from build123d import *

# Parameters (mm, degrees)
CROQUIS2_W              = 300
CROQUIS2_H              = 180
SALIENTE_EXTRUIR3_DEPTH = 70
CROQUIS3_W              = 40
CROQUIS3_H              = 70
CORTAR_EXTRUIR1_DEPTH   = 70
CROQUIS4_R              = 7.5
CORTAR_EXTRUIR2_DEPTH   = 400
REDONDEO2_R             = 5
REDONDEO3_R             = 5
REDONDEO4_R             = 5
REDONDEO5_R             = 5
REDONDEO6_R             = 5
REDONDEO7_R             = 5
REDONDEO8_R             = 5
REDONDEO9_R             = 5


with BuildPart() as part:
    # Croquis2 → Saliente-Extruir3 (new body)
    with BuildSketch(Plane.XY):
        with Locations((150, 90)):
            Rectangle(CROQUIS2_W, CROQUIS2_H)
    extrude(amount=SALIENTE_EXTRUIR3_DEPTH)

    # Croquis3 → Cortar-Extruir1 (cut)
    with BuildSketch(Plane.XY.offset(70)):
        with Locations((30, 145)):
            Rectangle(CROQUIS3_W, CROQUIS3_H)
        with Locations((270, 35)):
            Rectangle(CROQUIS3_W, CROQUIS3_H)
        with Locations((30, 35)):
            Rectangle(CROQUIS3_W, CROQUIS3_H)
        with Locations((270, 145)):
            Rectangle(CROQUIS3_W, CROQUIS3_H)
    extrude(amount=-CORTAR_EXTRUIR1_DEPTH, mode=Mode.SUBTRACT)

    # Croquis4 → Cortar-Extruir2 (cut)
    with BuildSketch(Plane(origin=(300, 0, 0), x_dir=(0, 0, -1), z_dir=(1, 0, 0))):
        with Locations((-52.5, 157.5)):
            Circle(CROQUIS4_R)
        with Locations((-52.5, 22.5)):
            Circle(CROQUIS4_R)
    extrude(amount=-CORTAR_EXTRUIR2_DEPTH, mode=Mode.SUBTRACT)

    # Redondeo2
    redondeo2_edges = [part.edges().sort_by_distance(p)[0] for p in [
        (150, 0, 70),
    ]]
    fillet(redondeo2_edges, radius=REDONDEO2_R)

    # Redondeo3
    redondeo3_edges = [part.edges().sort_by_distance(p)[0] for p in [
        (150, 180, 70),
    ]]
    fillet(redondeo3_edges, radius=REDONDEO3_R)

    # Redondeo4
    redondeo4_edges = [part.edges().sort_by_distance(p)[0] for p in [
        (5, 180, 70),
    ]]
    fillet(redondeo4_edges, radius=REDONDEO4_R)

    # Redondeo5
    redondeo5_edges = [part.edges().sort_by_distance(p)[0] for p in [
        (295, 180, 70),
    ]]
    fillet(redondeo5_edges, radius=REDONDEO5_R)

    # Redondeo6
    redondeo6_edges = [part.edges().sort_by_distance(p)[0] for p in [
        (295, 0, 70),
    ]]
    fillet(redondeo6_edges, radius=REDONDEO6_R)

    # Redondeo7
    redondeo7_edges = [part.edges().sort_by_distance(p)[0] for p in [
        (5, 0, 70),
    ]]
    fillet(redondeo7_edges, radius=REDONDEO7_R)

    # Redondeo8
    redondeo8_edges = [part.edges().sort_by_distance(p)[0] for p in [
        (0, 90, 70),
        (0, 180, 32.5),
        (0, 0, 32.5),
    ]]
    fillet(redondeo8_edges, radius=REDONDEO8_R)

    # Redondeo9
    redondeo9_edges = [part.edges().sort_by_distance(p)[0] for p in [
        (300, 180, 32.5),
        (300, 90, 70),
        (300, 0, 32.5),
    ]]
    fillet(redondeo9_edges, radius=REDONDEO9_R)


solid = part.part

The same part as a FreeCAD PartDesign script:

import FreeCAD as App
import Part
import Sketcher

V = App.Vector


def edges_at(feature, points):
    """Names of the edges that pass closest to the given points."""
    edges = feature.Shape.Edges
    near = lambda p: min(range(len(edges)), key=lambda i: edges[i].distToShape(Part.Vertex(*p))[0])
    return sorted({f"Edge{near(p) + 1}" for p in points})

doc = App.newDocument("Part")
body = doc.addObject("PartDesign::Body", "Body")

# Sketch on XY plane
sketch1 = body.newObject("Sketcher::SketchObject", "Sketch")
sketch1.AttachmentSupport = (doc.getObject("XY_Plane"), [""])
sketch1.MapMode = "FlatFace"
sketch1.addGeometry([
    Part.LineSegment(V(0, 180, 0), V(0, 0, 0)),
    Part.LineSegment(V(0, 0, 0), V(300, 0, 0)),
    Part.LineSegment(V(300, 0, 0), V(300, 180, 0)),
    Part.LineSegment(V(300, 180, 0), V(0, 180, 0)),
], False)
sketch1.addConstraint([
    Sketcher.Constraint("Coincident", 0, 2, 1, 1),
    Sketcher.Constraint("Coincident", 1, 2, 2, 1),
    Sketcher.Constraint("Coincident", 2, 2, 3, 1),
    Sketcher.Constraint("Coincident", 3, 2, 0, 1),
    Sketcher.Constraint("Vertical", 0),
    Sketcher.Constraint("Horizontal", 1),
    Sketcher.Constraint("Vertical", 2),
    Sketcher.Constraint("Horizontal", 3),
    Sketcher.Constraint("Coincident", 0, 2, -1, 1),
    Sketcher.Constraint("DistanceX", 1, 1, 1, 2, 300.0),
    Sketcher.Constraint("DistanceY", 0, 2, 0, 1, 180.0),
])
pad1 = body.newObject("PartDesign::Pad", "Pad")
pad1.Profile = sketch1
pad1.Length = 70

# Sketch on XY plane
sketch2 = body.newObject("Sketcher::SketchObject", "Sketch001")
sketch2.AttachmentSupport = (doc.getObject("XY_Plane"), [""])
sketch2.MapMode = "FlatFace"
sketch2.AttachmentOffset = App.Placement(V(0, 0, 70), App.Rotation())
sketch2.addGeometry([
    Part.LineSegment(V(10, 180, 0), V(10, 110, 0)),  # 0
    Part.LineSegment(V(10, 110, 0), V(50, 110, 0)),  # 1
    Part.LineSegment(V(50, 110, 0), V(50, 180, 0)),  # 2
    Part.LineSegment(V(50, 180, 0), V(10, 180, 0)),  # 3
    Part.LineSegment(V(250, 70, 0), V(250, 0, 0)),  # 4
    Part.LineSegment(V(250, 0, 0), V(290, 0, 0)),  # 5
    Part.LineSegment(V(290, 0, 0), V(290, 70, 0)),  # 6
    Part.LineSegment(V(290, 70, 0), V(250, 70, 0)),  # 7
    Part.LineSegment(V(10, 70, 0), V(10, 0, 0)),  # 8
    Part.LineSegment(V(10, 0, 0), V(50, 0, 0)),  # 9
    Part.LineSegment(V(50, 0, 0), V(50, 70, 0)),  # 10
    Part.LineSegment(V(50, 70, 0), V(10, 70, 0)),  # 11
    Part.LineSegment(V(250, 180, 0), V(250, 110, 0)),  # 12
    Part.LineSegment(V(250, 110, 0), V(290, 110, 0)),  # 13
    Part.LineSegment(V(290, 110, 0), V(290, 180, 0)),  # 14
    Part.LineSegment(V(290, 180, 0), V(250, 180, 0)),  # 15
], False)
sketch2.addConstraint([
    Sketcher.Constraint("Coincident", 0, 2, 1, 1),
    Sketcher.Constraint("Coincident", 1, 2, 2, 1),
    Sketcher.Constraint("Coincident", 2, 2, 3, 1),
    Sketcher.Constraint("Coincident", 3, 2, 0, 1),
    Sketcher.Constraint("Coincident", 4, 2, 5, 1),
    Sketcher.Constraint("Coincident", 5, 2, 6, 1),
    Sketcher.Constraint("Coincident", 6, 2, 7, 1),
    Sketcher.Constraint("Coincident", 7, 2, 4, 1),
    Sketcher.Constraint("Coincident", 8, 2, 9, 1),
    Sketcher.Constraint("Coincident", 9, 2, 10, 1),
    Sketcher.Constraint("Coincident", 10, 2, 11, 1),
    Sketcher.Constraint("Coincident", 11, 2, 8, 1),
    Sketcher.Constraint("Coincident", 12, 2, 13, 1),
    Sketcher.Constraint("Coincident", 13, 2, 14, 1),
    Sketcher.Constraint("Coincident", 14, 2, 15, 1),
    Sketcher.Constraint("Coincident", 15, 2, 12, 1),
    Sketcher.Constraint("Vertical", 0),
    Sketcher.Constraint("Horizontal", 1),
    Sketcher.Constraint("Vertical", 2),
    Sketcher.Constraint("Horizontal", 3),
    Sketcher.Constraint("Vertical", 4),
    Sketcher.Constraint("Horizontal", 5),
    Sketcher.Constraint("Vertical", 6),
    Sketcher.Constraint("Horizontal", 7),
    Sketcher.Constraint("Vertical", 8),
    Sketcher.Constraint("Horizontal", 9),
    Sketcher.Constraint("Vertical", 10),
    Sketcher.Constraint("Horizontal", 11),
    Sketcher.Constraint("Vertical", 12),
    Sketcher.Constraint("Horizontal", 13),
    Sketcher.Constraint("Vertical", 14),
    Sketcher.Constraint("Horizontal", 15),
    Sketcher.Constraint("PointOnObject", 4, 2, -1),
    Sketcher.Constraint("PointOnObject", 8, 2, -1),
    Sketcher.Constraint("Horizontal", 7, 2, 10, 2),
    Sketcher.Constraint("Horizontal", 1, 2, 12, 2),
    Sketcher.Constraint("Horizontal", 3, 2, 14, 2),
    Sketcher.Constraint("Vertical", 3, 2, 8, 2),
    Sketcher.Constraint("Vertical", 2, 2, 9, 2),
    Sketcher.Constraint("Vertical", 7, 2, 12, 2),
    Sketcher.Constraint("Vertical", 6, 2, 13, 2),
    Sketcher.Constraint("Equal", 3, 5),
    Sketcher.Constraint("Equal", 2, 4),
    Sketcher.Constraint("DistanceX", 1, 1, 1, 2, 40.0),
    Sketcher.Constraint("DistanceY", 0, 2, 0, 1, 70.0),
    Sketcher.Constraint("DistanceX", -1, 1, 0, 2, 10.0),
    Sketcher.Constraint("DistanceY", -1, 1, 0, 2, 110.0),
    Sketcher.Constraint("DistanceX", -1, 1, 4, 2, 250.0),
])
pocket1 = body.newObject("PartDesign::Pocket", "Pocket")
pocket1.Profile = sketch2
pocket1.Length = 70

# Sketch on YZ plane
sketch3 = body.newObject("Sketcher::SketchObject", "Sketch002")
sketch3.AttachmentSupport = (doc.getObject("YZ_Plane"), [""])
sketch3.MapMode = "FlatFace"
sketch3.AttachmentOffset = App.Placement(V(0, 0, 300), App.Rotation())
sketch3.addGeometry([
    Part.Circle(V(158, 52, 0), V(0, 0, 1), 8),
    Part.Circle(V(22, 52, 0), V(0, 0, 1), 8),
], False)
sketch3.addConstraint([
    Sketcher.Constraint("Equal", 0, 1),
    Sketcher.Constraint("Horizontal", 0, 3, 1, 3),
    Sketcher.Constraint("Diameter", 0, 15.0),
    Sketcher.Constraint("DistanceX", 1, 3, 0, 3, 135.0),
    Sketcher.Constraint("DistanceX", -1, 1, 0, 3, 157.5),
    Sketcher.Constraint("DistanceY", -1, 1, 0, 3, 52.5),
])
pocket2 = body.newObject("PartDesign::Pocket", "Pocket001")
pocket2.Profile = sketch3
pocket2.Length = 400
doc.recompute()

fillet = body.newObject("PartDesign::Fillet", "Fillet")
fillet.Base = (pocket2, edges_at(pocket2, [(150, 0, 70)]))
fillet.Radius = 5
doc.recompute()

fillet2 = body.newObject("PartDesign::Fillet", "Fillet001")
fillet2.Base = (fillet, edges_at(fillet, [(150, 180, 70)]))
fillet2.Radius = 5
doc.recompute()

fillet3 = body.newObject("PartDesign::Fillet", "Fillet002")
fillet3.Base = (fillet2, edges_at(fillet2, [(5, 180, 70)]))
fillet3.Radius = 5
doc.recompute()

fillet4 = body.newObject("PartDesign::Fillet", "Fillet003")
fillet4.Base = (fillet3, edges_at(fillet3, [(295, 180, 70)]))
fillet4.Radius = 5
doc.recompute()

fillet5 = body.newObject("PartDesign::Fillet", "Fillet004")
fillet5.Base = (fillet4, edges_at(fillet4, [(295, 0, 70)]))
fillet5.Radius = 5
doc.recompute()

fillet6 = body.newObject("PartDesign::Fillet", "Fillet005")
fillet6.Base = (fillet5, edges_at(fillet5, [(5, 0, 70)]))
fillet6.Radius = 5
doc.recompute()

fillet7 = body.newObject("PartDesign::Fillet", "Fillet006")
fillet7.Base = (fillet6, edges_at(fillet6, [(0, 90, 70), (0, 180, 32.5), (0, 0, 32.5)]))
fillet7.Radius = 5
doc.recompute()

fillet8 = body.newObject("PartDesign::Fillet", "Fillet007")
fillet8.Base = (fillet7, edges_at(fillet7, [(300, 180, 32.5), (300, 90, 70), (300, 0, 32.5)]))
fillet8.Radius = 5

doc.recompute()
